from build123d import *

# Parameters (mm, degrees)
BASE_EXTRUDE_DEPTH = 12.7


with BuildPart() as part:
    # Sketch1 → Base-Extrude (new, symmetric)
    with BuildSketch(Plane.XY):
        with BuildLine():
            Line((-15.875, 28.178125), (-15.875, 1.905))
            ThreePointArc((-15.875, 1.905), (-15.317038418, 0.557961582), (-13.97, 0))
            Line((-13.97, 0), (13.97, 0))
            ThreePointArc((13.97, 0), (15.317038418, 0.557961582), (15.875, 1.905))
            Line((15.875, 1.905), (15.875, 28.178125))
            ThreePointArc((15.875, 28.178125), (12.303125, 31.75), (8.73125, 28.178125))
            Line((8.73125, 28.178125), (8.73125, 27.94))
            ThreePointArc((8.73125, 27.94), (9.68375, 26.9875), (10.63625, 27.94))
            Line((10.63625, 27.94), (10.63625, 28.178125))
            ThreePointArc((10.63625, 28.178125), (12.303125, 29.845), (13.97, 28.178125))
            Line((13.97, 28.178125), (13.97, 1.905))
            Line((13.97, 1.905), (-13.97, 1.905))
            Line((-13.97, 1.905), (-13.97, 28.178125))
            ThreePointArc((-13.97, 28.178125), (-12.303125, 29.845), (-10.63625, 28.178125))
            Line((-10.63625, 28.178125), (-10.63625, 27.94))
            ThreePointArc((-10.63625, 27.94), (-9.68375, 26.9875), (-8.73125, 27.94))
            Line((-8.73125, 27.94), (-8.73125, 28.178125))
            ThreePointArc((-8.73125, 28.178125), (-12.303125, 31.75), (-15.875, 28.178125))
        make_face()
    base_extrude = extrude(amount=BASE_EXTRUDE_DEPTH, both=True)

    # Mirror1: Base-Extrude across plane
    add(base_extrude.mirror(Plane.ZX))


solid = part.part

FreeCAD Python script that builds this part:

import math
import FreeCAD as App
import Part
import Sketcher
from FreeCAD import Vector
Q = App.Units.Quantity

doc = App.newDocument("Part")
body = doc.addObject("PartDesign::Body", "Body")

sketch1 = body.newObject("Sketcher::SketchObject", "Sketch")
sketch1.AttachmentSupport = (doc.getObject("XY_Plane"), [""])
sketch1.MapMode = "FlatFace"
sketch1.addGeometry([
    Part.LineSegment(Vector(-15.875, 28.178125, 0), Vector(-15.875, 1.905, 0)),
    Part.ArcOfCircle(Part.Circle(Vector(-13.97, 1.905, 0), Vector(0, 0, 1), 1.905), math.radians(-180), math.radians(-90)),
    Part.LineSegment(Vector(-13.97, 0, 0), Vector(13.97, 0, 0)),
    Part.ArcOfCircle(Part.Circle(Vector(13.97, 1.905, 0), Vector(0, 0, 1), 1.905), math.radians(-90), math.radians(0)),
    Part.LineSegment(Vector(15.875, 1.905, 0), Vector(15.875, 28.178125, 0)),
    Part.ArcOfCircle(Part.Circle(Vector(12.303125, 28.178125, 0), Vector(0, 0, 1), 3.571875), math.radians(0), math.radians(180)),
    Part.LineSegment(Vector(8.73125, 28.178125, 0), Vector(8.73125, 27.94, 0)),
    Part.ArcOfCircle(Part.Circle(Vector(9.68375, 27.94, 0), Vector(0, 0, 1), 0.9525), math.radians(180), math.radians(360)),
    Part.LineSegment(Vector(10.63625, 27.94, 0), Vector(10.63625, 28.178125, 0)),
    Part.ArcOfCircle(Part.Circle(Vector(12.303125, 28.178125, 0), Vector(0, 0, 1), 1.666875), math.radians(0), math.radians(180)),
    Part.LineSegment(Vector(13.97, 28.178125, 0), Vector(13.97, 1.905, 0)),
    Part.LineSegment(Vector(13.97, 1.905, 0), Vector(-13.97, 1.905, 0)),
    Part.LineSegment(Vector(-13.97, 1.905, 0), Vector(-13.97, 28.178125, 0)),
    Part.ArcOfCircle(Part.Circle(Vector(-12.303125, 28.178125, 0), Vector(0, 0, 1), 1.666875), math.radians(0), math.radians(180)),
    Part.LineSegment(Vector(-10.63625, 28.178125, 0), Vector(-10.63625, 27.94, 0)),
    Part.ArcOfCircle(Part.Circle(Vector(-9.68375, 27.94, 0), Vector(0, 0, 1), 0.9525), math.radians(180), math.radians(360)),
    Part.LineSegment(Vector(-8.73125, 27.94, 0), Vector(-8.73125, 28.178125, 0)),
    Part.ArcOfCircle(Part.Circle(Vector(-12.303125, 28.178125, 0), Vector(0, 0, 1), 3.571875), math.radians(0), math.radians(180)),
], False)
sketch1.addConstraint([
    Sketcher.Constraint("Tangent", 0, 2, 1, 1),
    Sketcher.Constraint("Tangent", 1, 2, 2, 1),
    Sketcher.Constraint("Tangent", 2, 2, 3, 1),
    Sketcher.Constraint("Tangent", 3, 2, 4, 1),
    Sketcher.Constraint("Tangent", 4, 2, 5, 1),
    Sketcher.Constraint("Tangent", 5, 2, 6, 1),
    Sketcher.Constraint("Tangent", 6, 2, 7, 1),
    Sketcher.Constraint("Tangent", 7, 2, 8, 1),
    Sketcher.Constraint("Tangent", 8, 2, 9, 2),
    Sketcher.Constraint("Tangent", 9, 1, 10, 1),
    Sketcher.Constraint("Coincident", 10, 2, 11, 1),
    Sketcher.Constraint("Coincident", 11, 2, 12, 1),
    Sketcher.Constraint("Tangent", 12, 2, 13, 2),
    Sketcher.Constraint("Tangent", 13, 1, 14, 1),
    Sketcher.Constraint("Tangent", 14, 2, 15, 1),
    Sketcher.Constraint("Tangent", 15, 2, 16, 1),
    Sketcher.Constraint("Tangent", 16, 2, 17, 1),
    Sketcher.Constraint("Tangent", 17, 2, 0, 1),
    Sketcher.Constraint("Vertical", 0),
    Sketcher.Constraint("Horizontal", 2),
    Sketcher.Constraint("Vertical", 4),
    Sketcher.Constraint("Vertical", 6),
    Sketcher.Constraint("Vertical", 8),
    Sketcher.Constraint("Vertical", 10),
    Sketcher.Constraint("Horizontal", 11),
    Sketcher.Constraint("Vertical", 12),
    Sketcher.Constraint("Vertical", 14),
    Sketcher.Constraint("Vertical", 16),
    Sketcher.Constraint("Coincident", 9, 3, 5, 3),
    Sketcher.Constraint("Coincident", 17, 3, 13, 3),
    Sketcher.Constraint("Coincident", 10, 2, 3, 3),
    Sketcher.Constraint("Coincident", 11, 2, 1, 3),
    Sketcher.Constraint("Equal", 9, 13),
    Sketcher.Constraint("Symmetric", 1, 2, 2, 2, -1, 1),
    Sketcher.Constraint("Horizontal", 9, 3, 13, 3),
    Sketcher.Constraint("Horizontal", 7, 3, 15, 3),
    Sketcher.Constraint("DistanceX", 2, 1, 2, 2, Q("1.1 in")),
    Sketcher.Constraint("Radius", 1, Q("0.075 in")),
    Sketcher.Constraint("Radius", 5, Q("0.140625 in")),
    Sketcher.Constraint("DistanceY", -1, 1, 7, 3, Q("1.1 in")),
    Sketcher.Constraint("DistanceY", -1, 1, 5, 3, Q("1.109375 in")),
])
pad1 = body.newObject("PartDesign::Pad", "Pad")
pad1.Profile = sketch1
pad1.Length = Q("1 in")
pad1.Midplane = True
doc.recompute()

mirrored = body.newObject("PartDesign::Mirrored", "Mirrored")
mirrored.Originals = [pad1]
mirrored.MirrorPlane = (doc.getObject("XZ_Plane"), [""])
body.Tip = mirrored

doc.recompute()
